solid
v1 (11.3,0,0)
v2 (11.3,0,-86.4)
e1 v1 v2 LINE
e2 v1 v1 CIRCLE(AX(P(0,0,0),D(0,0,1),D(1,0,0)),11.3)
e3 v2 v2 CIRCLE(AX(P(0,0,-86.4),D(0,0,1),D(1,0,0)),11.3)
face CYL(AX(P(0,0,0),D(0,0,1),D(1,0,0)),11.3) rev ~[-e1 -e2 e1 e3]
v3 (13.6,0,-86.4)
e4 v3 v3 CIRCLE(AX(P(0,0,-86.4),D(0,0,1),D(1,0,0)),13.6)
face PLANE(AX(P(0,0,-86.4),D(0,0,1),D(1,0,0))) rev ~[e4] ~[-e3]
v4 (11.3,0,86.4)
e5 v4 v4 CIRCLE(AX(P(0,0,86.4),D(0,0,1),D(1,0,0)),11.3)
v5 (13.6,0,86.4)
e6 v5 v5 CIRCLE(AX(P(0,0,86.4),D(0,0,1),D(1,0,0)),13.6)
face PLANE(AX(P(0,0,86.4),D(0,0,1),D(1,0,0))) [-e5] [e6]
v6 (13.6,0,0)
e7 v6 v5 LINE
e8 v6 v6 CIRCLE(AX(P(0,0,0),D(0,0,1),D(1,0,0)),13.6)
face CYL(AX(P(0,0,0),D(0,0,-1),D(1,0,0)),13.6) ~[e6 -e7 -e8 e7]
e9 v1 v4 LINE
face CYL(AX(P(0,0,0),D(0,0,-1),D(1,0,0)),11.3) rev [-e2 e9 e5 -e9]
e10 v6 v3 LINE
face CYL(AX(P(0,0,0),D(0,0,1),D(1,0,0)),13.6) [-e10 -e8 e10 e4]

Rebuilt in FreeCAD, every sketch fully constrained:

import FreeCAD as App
import Part
import Sketcher

V = App.Vector
Q = App.Units.Quantity

doc = App.newDocument("Part")
body = doc.addObject("PartDesign::Body", "Body")

# Sketch on XY plane
sketch1 = doc.addObject("Sketcher::SketchObject", "Sketch")
body.addObject(sketch1)
sketch1.AttachmentSupport = (doc.XY_Plane, [""])
sketch1.MapMode = "FlatFace"
sketch1.addGeometry([
    Part.Circle(V(0, 0, 0), V(0, 0, 1), 14),
    Part.Circle(V(0, 0, 0), V(0, 0, 1), 11),
], False)
sketch1.addConstraint([
    Sketcher.Constraint("Coincident", 0, 3, -1, 1),
    Sketcher.Constraint("Coincident", 1, 3, -1, 1),
    Sketcher.Constraint("Diameter", 0, Q("27.2 mm")),
    Sketcher.Constraint("Diameter", 1, Q("22.6 mm")),
])
pad1 = doc.addObject("PartDesign::Pad", "Pad")
body.addObject(pad1)
pad1.Profile = sketch1
pad1.Length = 172.8
pad1.Midplane = True

doc.recompute()
